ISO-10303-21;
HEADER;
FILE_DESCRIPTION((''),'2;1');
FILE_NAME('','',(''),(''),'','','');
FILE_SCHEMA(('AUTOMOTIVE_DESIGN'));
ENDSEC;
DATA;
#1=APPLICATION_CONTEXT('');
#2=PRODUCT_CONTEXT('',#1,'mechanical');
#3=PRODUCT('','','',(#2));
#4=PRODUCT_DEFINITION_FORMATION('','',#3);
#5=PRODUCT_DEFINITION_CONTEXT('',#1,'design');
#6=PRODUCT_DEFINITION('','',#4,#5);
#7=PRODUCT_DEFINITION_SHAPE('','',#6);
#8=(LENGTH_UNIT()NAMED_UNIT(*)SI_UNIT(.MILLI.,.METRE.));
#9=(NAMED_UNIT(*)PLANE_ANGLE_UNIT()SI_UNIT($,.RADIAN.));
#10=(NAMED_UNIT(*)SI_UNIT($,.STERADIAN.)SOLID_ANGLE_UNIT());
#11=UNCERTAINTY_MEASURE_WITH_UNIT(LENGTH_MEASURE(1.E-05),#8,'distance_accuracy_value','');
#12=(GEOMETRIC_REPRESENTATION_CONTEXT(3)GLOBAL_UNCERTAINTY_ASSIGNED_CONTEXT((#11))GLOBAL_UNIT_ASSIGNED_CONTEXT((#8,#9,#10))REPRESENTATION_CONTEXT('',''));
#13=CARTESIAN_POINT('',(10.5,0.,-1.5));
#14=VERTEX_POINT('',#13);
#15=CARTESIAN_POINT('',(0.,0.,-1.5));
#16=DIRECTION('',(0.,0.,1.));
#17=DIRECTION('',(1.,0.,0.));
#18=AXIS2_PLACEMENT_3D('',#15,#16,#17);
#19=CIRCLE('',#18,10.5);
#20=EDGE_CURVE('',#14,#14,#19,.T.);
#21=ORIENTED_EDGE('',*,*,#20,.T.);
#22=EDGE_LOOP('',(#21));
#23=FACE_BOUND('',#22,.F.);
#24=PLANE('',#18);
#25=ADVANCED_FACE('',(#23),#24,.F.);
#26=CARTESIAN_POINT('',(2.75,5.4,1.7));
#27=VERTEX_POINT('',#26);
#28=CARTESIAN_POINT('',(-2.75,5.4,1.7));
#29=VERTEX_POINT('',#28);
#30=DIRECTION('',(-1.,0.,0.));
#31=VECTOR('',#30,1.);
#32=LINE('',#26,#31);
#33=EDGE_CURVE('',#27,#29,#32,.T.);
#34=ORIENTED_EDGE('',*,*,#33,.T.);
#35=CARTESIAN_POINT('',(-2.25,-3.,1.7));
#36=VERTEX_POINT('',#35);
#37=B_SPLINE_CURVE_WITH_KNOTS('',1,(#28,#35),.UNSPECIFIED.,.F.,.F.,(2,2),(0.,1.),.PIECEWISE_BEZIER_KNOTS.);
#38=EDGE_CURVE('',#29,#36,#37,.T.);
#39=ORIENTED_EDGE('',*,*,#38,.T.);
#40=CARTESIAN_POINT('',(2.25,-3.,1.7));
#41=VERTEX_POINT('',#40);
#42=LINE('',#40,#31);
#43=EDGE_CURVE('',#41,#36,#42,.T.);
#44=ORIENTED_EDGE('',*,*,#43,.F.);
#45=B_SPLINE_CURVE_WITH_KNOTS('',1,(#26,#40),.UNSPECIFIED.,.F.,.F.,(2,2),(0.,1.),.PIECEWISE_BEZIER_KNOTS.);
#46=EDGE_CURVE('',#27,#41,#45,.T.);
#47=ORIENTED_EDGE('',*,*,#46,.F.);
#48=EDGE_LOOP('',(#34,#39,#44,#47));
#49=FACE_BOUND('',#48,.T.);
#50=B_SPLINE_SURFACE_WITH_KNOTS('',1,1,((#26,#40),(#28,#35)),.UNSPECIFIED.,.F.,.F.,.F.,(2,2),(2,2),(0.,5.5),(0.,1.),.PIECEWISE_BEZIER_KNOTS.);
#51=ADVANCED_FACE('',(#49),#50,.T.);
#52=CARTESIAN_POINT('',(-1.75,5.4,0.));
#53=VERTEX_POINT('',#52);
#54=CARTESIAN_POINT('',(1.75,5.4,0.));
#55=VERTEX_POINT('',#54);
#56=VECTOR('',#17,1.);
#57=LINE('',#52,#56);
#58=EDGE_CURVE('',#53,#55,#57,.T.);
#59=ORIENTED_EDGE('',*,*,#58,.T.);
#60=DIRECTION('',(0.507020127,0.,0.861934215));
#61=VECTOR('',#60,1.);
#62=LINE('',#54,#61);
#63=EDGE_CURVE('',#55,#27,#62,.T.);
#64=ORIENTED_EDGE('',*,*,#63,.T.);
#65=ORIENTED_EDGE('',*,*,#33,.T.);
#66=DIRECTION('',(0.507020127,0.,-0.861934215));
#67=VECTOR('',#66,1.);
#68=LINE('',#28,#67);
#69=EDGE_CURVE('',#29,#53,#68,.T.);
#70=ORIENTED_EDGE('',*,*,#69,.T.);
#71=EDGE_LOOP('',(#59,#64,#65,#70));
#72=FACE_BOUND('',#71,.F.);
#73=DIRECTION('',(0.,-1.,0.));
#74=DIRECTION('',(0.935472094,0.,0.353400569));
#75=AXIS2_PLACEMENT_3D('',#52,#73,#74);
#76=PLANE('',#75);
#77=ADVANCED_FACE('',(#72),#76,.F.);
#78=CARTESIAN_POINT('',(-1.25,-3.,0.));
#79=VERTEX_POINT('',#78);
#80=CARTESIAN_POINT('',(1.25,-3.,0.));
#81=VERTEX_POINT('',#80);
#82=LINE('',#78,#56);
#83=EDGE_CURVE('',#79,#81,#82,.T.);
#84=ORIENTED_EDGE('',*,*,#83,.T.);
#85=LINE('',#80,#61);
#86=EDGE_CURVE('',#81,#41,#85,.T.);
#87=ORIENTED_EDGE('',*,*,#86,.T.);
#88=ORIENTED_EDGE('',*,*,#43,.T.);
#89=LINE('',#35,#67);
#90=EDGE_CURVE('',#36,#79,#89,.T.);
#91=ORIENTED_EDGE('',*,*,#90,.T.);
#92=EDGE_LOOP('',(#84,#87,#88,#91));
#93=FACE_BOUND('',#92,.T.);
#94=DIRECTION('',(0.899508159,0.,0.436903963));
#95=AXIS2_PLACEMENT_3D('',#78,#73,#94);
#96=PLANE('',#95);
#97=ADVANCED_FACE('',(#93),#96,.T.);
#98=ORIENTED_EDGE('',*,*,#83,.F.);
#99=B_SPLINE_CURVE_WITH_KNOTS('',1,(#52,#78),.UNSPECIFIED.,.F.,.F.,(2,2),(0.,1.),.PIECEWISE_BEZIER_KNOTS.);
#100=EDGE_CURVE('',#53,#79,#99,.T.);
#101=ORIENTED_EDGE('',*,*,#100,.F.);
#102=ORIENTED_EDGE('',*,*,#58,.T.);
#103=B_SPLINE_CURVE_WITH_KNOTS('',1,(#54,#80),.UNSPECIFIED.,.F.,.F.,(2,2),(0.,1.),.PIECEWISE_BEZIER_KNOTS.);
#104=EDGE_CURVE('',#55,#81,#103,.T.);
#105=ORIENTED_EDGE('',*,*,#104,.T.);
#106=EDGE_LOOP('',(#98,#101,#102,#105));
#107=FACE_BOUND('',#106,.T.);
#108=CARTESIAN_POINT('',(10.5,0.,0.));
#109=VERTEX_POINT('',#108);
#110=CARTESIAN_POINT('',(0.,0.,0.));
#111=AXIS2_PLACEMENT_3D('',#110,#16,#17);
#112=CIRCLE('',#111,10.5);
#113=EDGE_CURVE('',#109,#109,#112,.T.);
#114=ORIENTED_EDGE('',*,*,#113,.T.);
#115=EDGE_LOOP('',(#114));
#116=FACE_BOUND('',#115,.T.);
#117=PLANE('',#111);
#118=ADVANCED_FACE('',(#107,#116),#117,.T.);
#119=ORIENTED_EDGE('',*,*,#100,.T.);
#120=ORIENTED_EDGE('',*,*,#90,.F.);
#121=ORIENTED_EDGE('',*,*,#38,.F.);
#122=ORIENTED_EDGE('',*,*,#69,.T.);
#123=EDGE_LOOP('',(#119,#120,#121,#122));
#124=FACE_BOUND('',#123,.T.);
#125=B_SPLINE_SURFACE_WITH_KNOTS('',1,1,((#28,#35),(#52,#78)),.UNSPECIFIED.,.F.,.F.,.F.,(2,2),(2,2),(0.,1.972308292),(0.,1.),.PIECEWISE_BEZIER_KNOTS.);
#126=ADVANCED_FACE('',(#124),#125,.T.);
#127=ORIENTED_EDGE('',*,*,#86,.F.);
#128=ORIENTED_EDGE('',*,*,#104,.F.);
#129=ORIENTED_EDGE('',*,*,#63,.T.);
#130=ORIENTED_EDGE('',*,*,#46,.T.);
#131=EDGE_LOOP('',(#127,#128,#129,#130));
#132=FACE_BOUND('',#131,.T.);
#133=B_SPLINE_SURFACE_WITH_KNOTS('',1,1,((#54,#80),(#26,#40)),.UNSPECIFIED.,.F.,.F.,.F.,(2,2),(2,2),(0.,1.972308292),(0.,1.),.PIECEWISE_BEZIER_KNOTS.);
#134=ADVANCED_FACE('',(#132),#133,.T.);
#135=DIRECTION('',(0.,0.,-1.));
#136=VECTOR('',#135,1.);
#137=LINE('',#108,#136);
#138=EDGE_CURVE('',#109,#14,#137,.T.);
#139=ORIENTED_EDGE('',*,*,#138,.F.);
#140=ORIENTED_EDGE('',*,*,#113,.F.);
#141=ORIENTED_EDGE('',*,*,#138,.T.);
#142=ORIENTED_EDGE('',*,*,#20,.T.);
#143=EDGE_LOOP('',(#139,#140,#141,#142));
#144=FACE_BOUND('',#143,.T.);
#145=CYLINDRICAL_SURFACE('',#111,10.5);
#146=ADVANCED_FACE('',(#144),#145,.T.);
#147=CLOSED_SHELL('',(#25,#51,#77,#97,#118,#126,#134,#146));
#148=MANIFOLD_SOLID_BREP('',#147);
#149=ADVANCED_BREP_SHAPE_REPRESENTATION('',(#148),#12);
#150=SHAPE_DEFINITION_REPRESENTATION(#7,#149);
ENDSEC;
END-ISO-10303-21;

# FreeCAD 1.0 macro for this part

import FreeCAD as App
import Part
import Sketcher

V = App.Vector


def add_polygon(sketch, points):
    """Adds a closed chain of lines whose ends are joined by coincident constraints."""
    first, n = sketch.GeometryCount, len(points)
    for a, b in zip(points, points[1:] + points[:1]):
        sketch.addGeometry(Part.LineSegment(App.Vector(*a, 0), App.Vector(*b, 0)), False)
    for i in range(n):
        sketch.addConstraint(Sketcher.Constraint("Coincident", first + i, 2, first + (i + 1) % n, 1))

doc = App.newDocument("Part")
body = doc.addObject("PartDesign::Body", "Body")

# Sketch on XY plane
sketch1 = doc.addObject("Sketcher::SketchObject", "Sketch")
body.addObject(sketch1)
sketch1.AttachmentSupport = (doc.XY_Plane, [""])
sketch1.MapMode = "FlatFace"
sketch1.addGeometry(Part.Circle(V(0, 0, 0), V(0, 0, 1), 10.5), False)
sketch1.addConstraint([
    Sketcher.Constraint("Coincident", 0, 3, -1, 1),
    Sketcher.Constraint("Diameter", 0, 21.0),
])
pad1 = doc.addObject("PartDesign::Pad", "Pad")
body.addObject(pad1)
pad1.Profile = sketch1
pad1.Length = 1.5
pad1.Reversed = True

# Sketch on XZ plane
sketch2 = doc.addObject("Sketcher::SketchObject", "Sketch001")
body.addObject(sketch2)
sketch2.AttachmentSupport = (doc.XZ_Plane, [""])
sketch2.MapMode = "FlatFace"
sketch2.AttachmentOffset = App.Placement(V(0, 0, -5.4), App.Rotation())
add_polygon(sketch2, [(-1.75, 0), (1.75, 0), (2.75, 1.7), (-2.75, 1.7)])  # lines 0-3
sketch2.addConstraint([
    Sketcher.Constraint("Horizontal", 0),
    Sketcher.Constraint("Horizontal", 2),
    Sketcher.Constraint("Symmetric", 0, 2, 3, 2, -1, 1),
    Sketcher.Constraint("Equal", 1, 3),
    Sketcher.Constraint("DistanceX", 0, 1, 0, 2, 3.5),
    Sketcher.Constraint("DistanceX", 2, 2, 2, 1, 5.5),
    Sketcher.Constraint("DistanceY", -1, 1, 1, 2, 1.7),
])

# Sketch on XZ plane
sketch3 = doc.addObject("Sketcher::SketchObject", "Sketch002")
body.addObject(sketch3)
sketch3.AttachmentSupport = (doc.XZ_Plane, [""])
sketch3.MapMode = "FlatFace"
sketch3.AttachmentOffset = App.Placement(V(0, 0, 3), App.Rotation())
add_polygon(sketch3, [(-1.25, 0), (1.25, 0), (2.25, 1.7), (-2.25, 1.7)])  # lines 0-3
sketch3.addConstraint([
    Sketcher.Constraint("Horizontal", 0),
    Sketcher.Constraint("Horizontal", 2),
    Sketcher.Constraint("Symmetric", 0, 2, 3, 2, -1, 1),
    Sketcher.Constraint("Equal", 1, 3),
    Sketcher.Constraint("DistanceX", 0, 1, 0, 2, 2.5),
    Sketcher.Constraint("DistanceX", 2, 2, 2, 1, 4.5),
    Sketcher.Constraint("DistanceY", -1, 1, 1, 2, 1.7),
])

additiveloft = doc.addObject("PartDesign::AdditiveLoft", "AdditiveLoft")
body.addObject(additiveloft)
additiveloft.Profile = sketch2
additiveloft.Sections = [sketch3]

doc.recompute()
